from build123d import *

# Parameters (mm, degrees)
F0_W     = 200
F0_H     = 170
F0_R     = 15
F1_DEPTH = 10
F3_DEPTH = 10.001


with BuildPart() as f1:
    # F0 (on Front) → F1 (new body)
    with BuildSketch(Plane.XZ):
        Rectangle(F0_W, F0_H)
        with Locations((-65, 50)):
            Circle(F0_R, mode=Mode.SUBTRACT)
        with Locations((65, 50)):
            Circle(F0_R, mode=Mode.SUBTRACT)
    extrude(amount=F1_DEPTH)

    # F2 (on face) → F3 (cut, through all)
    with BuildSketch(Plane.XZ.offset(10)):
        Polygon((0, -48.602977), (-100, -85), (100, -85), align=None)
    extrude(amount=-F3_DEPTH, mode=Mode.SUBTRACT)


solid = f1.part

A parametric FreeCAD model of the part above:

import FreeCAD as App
import Part
import Sketcher
Q = App.Units.Quantity

doc = App.newDocument("Part")
params = doc.addObject("Spreadsheet::Sheet", "Params")
for row, (alias, value) in enumerate([
    ("sketch1_diameter", "30 mm"),
    ("sketch1_width", "200 mm"),
    ("sketch1_height", "170 mm"),
    ("pad1_length", "10 mm"),
    ("sketch2_width", "200 mm"),
], start=1):
    params.set(f"A{row}", alias)
    params.set(f"B{row}", "=" + value)
    params.setAlias(f"B{row}", alias)

body = doc.addObject("PartDesign::Body", "Body")

sketch1 = body.newObject("Sketcher::SketchObject", "Sketch")
sketch1.AttachmentSupport = (doc.getObject("XZ_Plane"), [""])
sketch1.MapMode = "FlatFace"
sketch1.addGeometry(Part.LineSegment(App.Vector(-100, 85, 0), App.Vector(-100, -85, 0)), False)
sketch1.addGeometry(Part.LineSegment(App.Vector(-100, -85, 0), App.Vector(100, -85, 0)), False)
sketch1.addGeometry(Part.LineSegment(App.Vector(100, -85, 0), App.Vector(100, 85, 0)), False)
sketch1.addGeometry(Part.LineSegment(App.Vector(100, 85, 0), App.Vector(-100, 85, 0)), False)
sketch1.addGeometry(Part.Circle(App.Vector(-65, 50, 0), App.Vector(0, 0, 1), 15), False)
sketch1.addGeometry(Part.Circle(App.Vector(65, 50, 0), App.Vector(0, 0, 1), 15), False)
sketch1.addConstraint(Sketcher.Constraint("Coincident", 0, 2, 1, 1))
sketch1.addConstraint(Sketcher.Constraint("Coincident", 1, 2, 2, 1))
sketch1.addConstraint(Sketcher.Constraint("Coincident", 2, 2, 3, 1))
sketch1.addConstraint(Sketcher.Constraint("Coincident", 3, 2, 0, 1))
sketch1.addConstraint(Sketcher.Constraint("Vertical", 0))
sketch1.addConstraint(Sketcher.Constraint("Horizontal", 1))
sketch1.addConstraint(Sketcher.Constraint("Vertical", 2))
sketch1.addConstraint(Sketcher.Constraint("Horizontal", 3))
sketch1.addConstraint(Sketcher.Constraint("Equal", 4, 5))
sketch1.addConstraint(Sketcher.Constraint("Symmetric", 0, 2, 2, 2, -1, 1))
sketch1.addConstraint(Sketcher.Constraint("Symmetric", 4, 3, 5, 3, -2))
sketch1.addConstraint(Sketcher.Constraint("Diameter", 4, 30.0))
sketch1.addConstraint(Sketcher.Constraint("DistanceX", 1, 1, 1, 2, 200.0))
sketch1.addConstraint(Sketcher.Constraint("DistanceY", 0, 2, 0, 1, 170.0))
sketch1.addConstraint(Sketcher.Constraint("DistanceX", 4, 3, -1, 1, 65.0))
sketch1.addConstraint(Sketcher.Constraint("DistanceY", -1, 1, 4, 3, 50.0))
sketch1.setExpression("Constraints[11]", "Params.sketch1_diameter")
sketch1.setExpression("Constraints[12]", "Params.sketch1_width")
sketch1.setExpression("Constraints[13]", "Params.sketch1_height")
pad1 = body.newObject("PartDesign::Pad", "Pad")
pad1.Profile = sketch1
pad1.setExpression("Length", "Params.pad1_length")

sketch2 = body.newObject("Sketcher::SketchObject", "Sketch001")
sketch2.AttachmentSupport = (doc.getObject("XZ_Plane"), [""])
sketch2.MapMode = "FlatFace"
sketch2.AttachmentOffset = App.Placement(App.Vector(0, 0, 10), App.Rotation())
sketch2.addGeometry(Part.LineSegment(App.Vector(0, -48.602977, 0), App.Vector(-100, -85, 0)), False)
sketch2.addGeometry(Part.LineSegment(App.Vector(-100, -85, 0), App.Vector(100, -85, 0)), False)
sketch2.addGeometry(Part.LineSegment(App.Vector(100, -85, 0), App.Vector(0, -48.602977, 0)), False)
sketch2.addConstraint(Sketcher.Constraint("Coincident", 0, 2, 1, 1))
sketch2.addConstraint(Sketcher.Constraint("Coincident", 1, 2, 2, 1))
sketch2.addConstraint(Sketcher.Constraint("Coincident", 2, 2, 0, 1))
sketch2.addConstraint(Sketcher.Constraint("Horizontal", 1))
sketch2.addConstraint(Sketcher.Constraint("PointOnObject", 2, 2, -2))
sketch2.addConstraint(Sketcher.Constraint("Equal", 0, 2))
sketch2.addConstraint(Sketcher.Constraint("DistanceX", 1, 1, 1, 2, 200.0))
sketch2.addConstraint(Sketcher.Constraint("Angle", 0, Q("-160 deg")))
sketch2.addConstraint(Sketcher.Constraint("DistanceY", 0, 2, -1, 1, 85.0))
sketch2.setExpression("Constraints[6]", "Params.sketch2_width")
pocket1 = body.newObject("PartDesign::Pocket", "Pocket")
pocket1.Profile = sketch2
pocket1.Type = "ThroughAll"

doc.recompute()
